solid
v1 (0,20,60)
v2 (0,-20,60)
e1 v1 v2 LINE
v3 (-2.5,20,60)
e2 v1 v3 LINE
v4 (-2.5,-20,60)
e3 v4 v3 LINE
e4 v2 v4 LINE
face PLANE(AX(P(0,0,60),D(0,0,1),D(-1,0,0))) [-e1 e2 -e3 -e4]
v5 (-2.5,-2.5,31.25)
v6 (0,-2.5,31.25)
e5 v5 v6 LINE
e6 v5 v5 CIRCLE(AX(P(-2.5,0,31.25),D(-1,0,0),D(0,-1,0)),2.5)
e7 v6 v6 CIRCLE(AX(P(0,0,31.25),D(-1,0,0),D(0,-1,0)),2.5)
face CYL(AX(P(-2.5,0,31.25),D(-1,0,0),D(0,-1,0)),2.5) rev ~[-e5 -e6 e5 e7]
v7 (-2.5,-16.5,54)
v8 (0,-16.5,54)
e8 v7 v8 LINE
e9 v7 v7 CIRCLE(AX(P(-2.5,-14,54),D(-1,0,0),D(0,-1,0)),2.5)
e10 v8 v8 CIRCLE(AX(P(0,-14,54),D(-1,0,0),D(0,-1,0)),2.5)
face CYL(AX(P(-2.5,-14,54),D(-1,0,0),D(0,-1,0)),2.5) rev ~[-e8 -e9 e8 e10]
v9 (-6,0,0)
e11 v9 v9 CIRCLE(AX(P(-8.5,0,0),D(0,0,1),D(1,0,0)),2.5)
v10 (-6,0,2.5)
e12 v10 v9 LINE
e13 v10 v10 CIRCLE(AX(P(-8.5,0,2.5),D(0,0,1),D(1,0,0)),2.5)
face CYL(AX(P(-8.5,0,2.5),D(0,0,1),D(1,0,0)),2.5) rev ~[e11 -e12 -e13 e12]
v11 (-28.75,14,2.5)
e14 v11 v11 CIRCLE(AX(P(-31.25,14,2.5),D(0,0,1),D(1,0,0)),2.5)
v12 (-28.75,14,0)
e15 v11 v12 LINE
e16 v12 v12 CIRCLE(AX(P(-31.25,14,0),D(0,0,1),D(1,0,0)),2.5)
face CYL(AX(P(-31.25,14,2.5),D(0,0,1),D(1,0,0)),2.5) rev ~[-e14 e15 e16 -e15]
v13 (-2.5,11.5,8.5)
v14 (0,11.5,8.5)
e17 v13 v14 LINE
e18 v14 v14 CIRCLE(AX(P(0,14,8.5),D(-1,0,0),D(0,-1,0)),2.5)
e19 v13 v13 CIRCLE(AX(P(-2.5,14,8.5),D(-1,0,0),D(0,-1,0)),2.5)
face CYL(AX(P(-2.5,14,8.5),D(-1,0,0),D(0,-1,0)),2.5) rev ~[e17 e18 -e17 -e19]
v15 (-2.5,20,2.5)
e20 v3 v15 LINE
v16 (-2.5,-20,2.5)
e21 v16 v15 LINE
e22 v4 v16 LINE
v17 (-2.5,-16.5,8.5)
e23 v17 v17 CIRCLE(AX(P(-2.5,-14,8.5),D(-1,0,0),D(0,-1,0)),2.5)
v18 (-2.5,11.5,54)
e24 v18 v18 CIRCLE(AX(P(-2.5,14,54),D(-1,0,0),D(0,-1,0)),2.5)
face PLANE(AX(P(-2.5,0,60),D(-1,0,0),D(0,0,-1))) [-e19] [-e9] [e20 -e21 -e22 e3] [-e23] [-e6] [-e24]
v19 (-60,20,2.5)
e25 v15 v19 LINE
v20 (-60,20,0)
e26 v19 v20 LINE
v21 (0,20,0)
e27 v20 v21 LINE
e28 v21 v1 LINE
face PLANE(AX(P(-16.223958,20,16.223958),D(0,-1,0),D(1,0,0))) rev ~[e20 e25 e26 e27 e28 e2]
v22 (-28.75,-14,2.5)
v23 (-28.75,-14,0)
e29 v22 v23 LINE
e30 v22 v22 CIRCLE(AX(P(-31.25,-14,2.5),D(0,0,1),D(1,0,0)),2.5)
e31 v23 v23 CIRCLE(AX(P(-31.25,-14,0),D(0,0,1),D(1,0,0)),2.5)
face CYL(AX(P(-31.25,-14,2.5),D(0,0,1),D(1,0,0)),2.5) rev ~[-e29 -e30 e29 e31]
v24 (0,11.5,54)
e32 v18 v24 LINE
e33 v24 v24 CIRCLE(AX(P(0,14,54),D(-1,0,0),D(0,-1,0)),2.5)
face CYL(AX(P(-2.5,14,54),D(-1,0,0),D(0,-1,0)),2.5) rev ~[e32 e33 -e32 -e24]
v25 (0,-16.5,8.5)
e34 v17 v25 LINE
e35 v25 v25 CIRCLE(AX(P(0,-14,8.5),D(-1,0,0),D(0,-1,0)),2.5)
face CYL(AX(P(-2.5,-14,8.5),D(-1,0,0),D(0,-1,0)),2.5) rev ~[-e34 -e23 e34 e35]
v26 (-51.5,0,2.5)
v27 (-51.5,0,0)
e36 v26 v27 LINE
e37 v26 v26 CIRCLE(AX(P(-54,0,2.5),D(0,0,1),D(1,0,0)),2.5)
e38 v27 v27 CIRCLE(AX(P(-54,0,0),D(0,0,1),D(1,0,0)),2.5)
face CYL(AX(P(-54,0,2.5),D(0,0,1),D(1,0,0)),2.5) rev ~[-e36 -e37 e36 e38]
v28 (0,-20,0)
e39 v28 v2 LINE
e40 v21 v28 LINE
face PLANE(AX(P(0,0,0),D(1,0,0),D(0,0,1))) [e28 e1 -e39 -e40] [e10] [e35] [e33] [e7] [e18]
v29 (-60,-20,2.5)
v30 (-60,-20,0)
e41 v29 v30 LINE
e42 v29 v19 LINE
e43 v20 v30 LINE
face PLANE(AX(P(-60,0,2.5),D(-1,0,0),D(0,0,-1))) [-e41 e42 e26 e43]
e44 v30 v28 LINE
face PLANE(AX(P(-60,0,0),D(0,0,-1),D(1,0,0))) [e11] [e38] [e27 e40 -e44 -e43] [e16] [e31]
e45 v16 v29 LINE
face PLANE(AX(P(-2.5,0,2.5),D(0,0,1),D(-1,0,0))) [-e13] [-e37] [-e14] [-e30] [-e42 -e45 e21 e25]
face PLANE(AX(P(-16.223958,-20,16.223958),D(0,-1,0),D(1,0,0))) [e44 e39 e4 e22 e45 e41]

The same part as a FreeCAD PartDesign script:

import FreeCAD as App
import Part
import Sketcher

doc = App.newDocument("Part")
params = doc.addObject("Spreadsheet::Sheet", "Params")
for row, (alias, value) in enumerate([
    ("sketch1_width", "60 mm"),
    ("sketch1_width2", "2.5 mm"),
    ("pad1_length", "40 mm"),
    ("sketch2_diameter", "5 mm"),
    ("pocket1_length", "25 mm"),
    ("sketch3_diameter", "5 mm"),
    ("pocket2_length", "25 mm"),
], start=1):
    params.set(f"A{row}", alias)
    params.set(f"B{row}", "=" + value)
    params.setAlias(f"B{row}", alias)

body = doc.addObject("PartDesign::Body", "Body")

# Sketch on XZ plane
sketch1 = doc.addObject("Sketcher::SketchObject", "Sketch")
body.addObject(sketch1)
sketch1.AttachmentSupport = (doc.XZ_Plane, [""])
sketch1.MapMode = "FlatFace"
sketch1.addGeometry(Part.LineSegment(App.Vector(-60, 2.5, 0), App.Vector(-60, 0, 0)), False)
sketch1.addGeometry(Part.LineSegment(App.Vector(-60, 0, 0), App.Vector(0, 0, 0)), False)
sketch1.addGeometry(Part.LineSegment(App.Vector(0, 0, 0), App.Vector(0, 60, 0)), False)
sketch1.addGeometry(Part.LineSegment(App.Vector(0, 60, 0), App.Vector(-2.5, 60, 0)), False)
sketch1.addGeometry(Part.LineSegment(App.Vector(-2.5, 60, 0), App.Vector(-2.5, 2.5, 0)), False)
sketch1.addGeometry(Part.LineSegment(App.Vector(-2.5, 2.5, 0), App.Vector(-60, 2.5, 0)), False)
sketch1.addConstraint(Sketcher.Constraint("Coincident", 0, 2, 1, 1))
sketch1.addConstraint(Sketcher.Constraint("Coincident", 1, 2, 2, 1))
sketch1.addConstraint(Sketcher.Constraint("Coincident", 2, 2, 3, 1))
sketch1.addConstraint(Sketcher.Constraint("Coincident", 3, 2, 4, 1))
sketch1.addConstraint(Sketcher.Constraint("Coincident", 4, 2, 5, 1))
sketch1.addConstraint(Sketcher.Constraint("Coincident", 5, 2, 0, 1))
sketch1.addConstraint(Sketcher.Constraint("Vertical", 0))
sketch1.addConstraint(Sketcher.Constraint("Horizontal", 1))
sketch1.addConstraint(Sketcher.Constraint("Vertical", 2))
sketch1.addConstraint(Sketcher.Constraint("Horizontal", 3))
sketch1.addConstraint(Sketcher.Constraint("Vertical", 4))
sketch1.addConstraint(Sketcher.Constraint("Horizontal", 5))
sketch1.addConstraint(Sketcher.Constraint("Coincident", 1, 2, -1, 1))
sketch1.addConstraint(Sketcher.Constraint("Equal", 3, 0))
sketch1.addConstraint(Sketcher.Constraint("Equal", 1, 2))
sketch1.addConstraint(Sketcher.Constraint("DistanceX", 1, 1, 1, 2, 60.0))
sketch1.addConstraint(Sketcher.Constraint("DistanceX", 3, 2, 3, 1, 2.5))
sketch1.setExpression("Constraints[15]", "Params.sketch1_width")
sketch1.setExpression("Constraints[16]", "Params.sketch1_width2")
pad1 = doc.addObject("PartDesign::Pad", "Pad")
body.addObject(pad1)
pad1.Profile = sketch1
pad1.setExpression("Length", "Params.pad1_length")
pad1.Midplane = True

# Sketch on YZ plane
sketch2 = doc.addObject("Sketcher::SketchObject", "Sketch001")
body.addObject(sketch2)
sketch2.AttachmentSupport = (doc.YZ_Plane, [""])
sketch2.MapMode = "FlatFace"
sketch2.AttachmentOffset = App.Placement(App.Vector(0, 0, -2.5), App.Rotation())
sketch2.addGeometry(Part.Circle(App.Vector(0, 31.2, 0), App.Vector(0, 0, 1), 2.5), False)
sketch2.addGeometry(Part.Circle(App.Vector(14, 8.5, 0), App.Vector(0, 0, 1), 2.5), False)
sketch2.addGeometry(Part.Circle(App.Vector(14, 54, 0), App.Vector(0, 0, 1), 2.5), False)
sketch2.addGeometry(Part.Circle(App.Vector(-14, 54, 0), App.Vector(0, 0, 1), 2.5), False)
sketch2.addGeometry(Part.Circle(App.Vector(-14, 8.5, 0), App.Vector(0, 0, 1), 2.5), False)
sketch2.addConstraint(Sketcher.Constraint("Equal", 0, 1))
sketch2.addConstraint(Sketcher.Constraint("Equal", 1, 2))
sketch2.addConstraint(Sketcher.Constraint("Equal", 2, 3))
sketch2.addConstraint(Sketcher.Constraint("Equal", 3, 4))
sketch2.addConstraint(Sketcher.Constraint("Symmetric", 2, 3, 3, 3, -2))
sketch2.addConstraint(Sketcher.Constraint("Symmetric", 1, 3, 4, 3, -2))
sketch2.addConstraint(Sketcher.Constraint("PointOnObject", 0, 3, -2))
sketch2.addConstraint(Sketcher.Constraint("Vertical", 1, 3, 2, 3))
sketch2.addConstraint(Sketcher.Constraint("Diameter", 0, 5.0))
sketch2.addConstraint(Sketcher.Constraint("DistanceX", -1, 1, 1, 3, 14.0))
sketch2.addConstraint(Sketcher.Constraint("DistanceY", -1, 1, 2, 3, 54.0))
sketch2.addConstraint(Sketcher.Constraint("DistanceY", -1, 1, 1, 3, 8.5))
sketch2.addConstraint(Sketcher.Constraint("DistanceY", -1, 1, 0, 3, 31.25))
sketch2.setExpression("Constraints[8]", "Params.sketch2_diameter")
pocket1 = doc.addObject("PartDesign::Pocket", "Pocket")
body.addObject(pocket1)
pocket1.Profile = sketch2
pocket1.setExpression("Length", "Params.pocket1_length")
pocket1.Reversed = True

# Sketch on XY plane
sketch3 = doc.addObject("Sketcher::SketchObject", "Sketch002")
body.addObject(sketch3)
sketch3.AttachmentSupport = (doc.XY_Plane, [""])
sketch3.MapMode = "FlatFace"
sketch3.AttachmentOffset = App.Placement(App.Vector(0, 0, 2.5), App.Rotation())
sketch3.addGeometry(Part.Circle(App.Vector(-54, 0, 0), App.Vector(0, 0, 1), 2.5), False)
sketch3.addGeometry(Part.Circle(App.Vector(-31.2, 14, 0), App.Vector(0, 0, 1), 2.5), False)
sketch3.addGeometry(Part.Circle(App.Vector(-31.2, -14, 0), App.Vector(0, 0, 1), 2.5), False)
sketch3.addGeometry(Part.Circle(App.Vector(-8.5, 0, 0), App.Vector(0, 0, 1), 2.5), False)
sketch3.addConstraint(Sketcher.Constraint("Equal", 0, 1))
sketch3.addConstraint(Sketcher.Constraint("Equal", 1, 2))
sketch3.addConstraint(Sketcher.Constraint("Equal", 2, 3))
sketch3.addConstraint(Sketcher.Constraint("Symmetric", 1, 3, 2, 3, -1))
sketch3.addConstraint(Sketcher.Constraint("PointOnObject", 0, 3, -1))
sketch3.addConstraint(Sketcher.Constraint("PointOnObject", 3, 3, -1))
sketch3.addConstraint(Sketcher.Constraint("Diameter", 0, 5.0))
sketch3.addConstraint(Sketcher.Constraint("DistanceX", 0, 3, -1, 1, 54.0))
sketch3.addConstraint(Sketcher.Constraint("DistanceY", -1, 1, 1, 3, 14.0))
sketch3.addConstraint(Sketcher.Constraint("DistanceX", 3, 3, -1, 1, 8.5))
sketch3.addConstraint(Sketcher.Constraint("DistanceX", 1, 3, -1, 1, 31.25))
sketch3.setExpression("Constraints[6]", "Params.sketch3_diameter")
pocket2 = doc.addObject("PartDesign::Pocket", "Pocket001")
body.addObject(pocket2)
pocket2.Profile = sketch3
pocket2.setExpression("Length", "Params.pocket2_length")

doc.recompute()
